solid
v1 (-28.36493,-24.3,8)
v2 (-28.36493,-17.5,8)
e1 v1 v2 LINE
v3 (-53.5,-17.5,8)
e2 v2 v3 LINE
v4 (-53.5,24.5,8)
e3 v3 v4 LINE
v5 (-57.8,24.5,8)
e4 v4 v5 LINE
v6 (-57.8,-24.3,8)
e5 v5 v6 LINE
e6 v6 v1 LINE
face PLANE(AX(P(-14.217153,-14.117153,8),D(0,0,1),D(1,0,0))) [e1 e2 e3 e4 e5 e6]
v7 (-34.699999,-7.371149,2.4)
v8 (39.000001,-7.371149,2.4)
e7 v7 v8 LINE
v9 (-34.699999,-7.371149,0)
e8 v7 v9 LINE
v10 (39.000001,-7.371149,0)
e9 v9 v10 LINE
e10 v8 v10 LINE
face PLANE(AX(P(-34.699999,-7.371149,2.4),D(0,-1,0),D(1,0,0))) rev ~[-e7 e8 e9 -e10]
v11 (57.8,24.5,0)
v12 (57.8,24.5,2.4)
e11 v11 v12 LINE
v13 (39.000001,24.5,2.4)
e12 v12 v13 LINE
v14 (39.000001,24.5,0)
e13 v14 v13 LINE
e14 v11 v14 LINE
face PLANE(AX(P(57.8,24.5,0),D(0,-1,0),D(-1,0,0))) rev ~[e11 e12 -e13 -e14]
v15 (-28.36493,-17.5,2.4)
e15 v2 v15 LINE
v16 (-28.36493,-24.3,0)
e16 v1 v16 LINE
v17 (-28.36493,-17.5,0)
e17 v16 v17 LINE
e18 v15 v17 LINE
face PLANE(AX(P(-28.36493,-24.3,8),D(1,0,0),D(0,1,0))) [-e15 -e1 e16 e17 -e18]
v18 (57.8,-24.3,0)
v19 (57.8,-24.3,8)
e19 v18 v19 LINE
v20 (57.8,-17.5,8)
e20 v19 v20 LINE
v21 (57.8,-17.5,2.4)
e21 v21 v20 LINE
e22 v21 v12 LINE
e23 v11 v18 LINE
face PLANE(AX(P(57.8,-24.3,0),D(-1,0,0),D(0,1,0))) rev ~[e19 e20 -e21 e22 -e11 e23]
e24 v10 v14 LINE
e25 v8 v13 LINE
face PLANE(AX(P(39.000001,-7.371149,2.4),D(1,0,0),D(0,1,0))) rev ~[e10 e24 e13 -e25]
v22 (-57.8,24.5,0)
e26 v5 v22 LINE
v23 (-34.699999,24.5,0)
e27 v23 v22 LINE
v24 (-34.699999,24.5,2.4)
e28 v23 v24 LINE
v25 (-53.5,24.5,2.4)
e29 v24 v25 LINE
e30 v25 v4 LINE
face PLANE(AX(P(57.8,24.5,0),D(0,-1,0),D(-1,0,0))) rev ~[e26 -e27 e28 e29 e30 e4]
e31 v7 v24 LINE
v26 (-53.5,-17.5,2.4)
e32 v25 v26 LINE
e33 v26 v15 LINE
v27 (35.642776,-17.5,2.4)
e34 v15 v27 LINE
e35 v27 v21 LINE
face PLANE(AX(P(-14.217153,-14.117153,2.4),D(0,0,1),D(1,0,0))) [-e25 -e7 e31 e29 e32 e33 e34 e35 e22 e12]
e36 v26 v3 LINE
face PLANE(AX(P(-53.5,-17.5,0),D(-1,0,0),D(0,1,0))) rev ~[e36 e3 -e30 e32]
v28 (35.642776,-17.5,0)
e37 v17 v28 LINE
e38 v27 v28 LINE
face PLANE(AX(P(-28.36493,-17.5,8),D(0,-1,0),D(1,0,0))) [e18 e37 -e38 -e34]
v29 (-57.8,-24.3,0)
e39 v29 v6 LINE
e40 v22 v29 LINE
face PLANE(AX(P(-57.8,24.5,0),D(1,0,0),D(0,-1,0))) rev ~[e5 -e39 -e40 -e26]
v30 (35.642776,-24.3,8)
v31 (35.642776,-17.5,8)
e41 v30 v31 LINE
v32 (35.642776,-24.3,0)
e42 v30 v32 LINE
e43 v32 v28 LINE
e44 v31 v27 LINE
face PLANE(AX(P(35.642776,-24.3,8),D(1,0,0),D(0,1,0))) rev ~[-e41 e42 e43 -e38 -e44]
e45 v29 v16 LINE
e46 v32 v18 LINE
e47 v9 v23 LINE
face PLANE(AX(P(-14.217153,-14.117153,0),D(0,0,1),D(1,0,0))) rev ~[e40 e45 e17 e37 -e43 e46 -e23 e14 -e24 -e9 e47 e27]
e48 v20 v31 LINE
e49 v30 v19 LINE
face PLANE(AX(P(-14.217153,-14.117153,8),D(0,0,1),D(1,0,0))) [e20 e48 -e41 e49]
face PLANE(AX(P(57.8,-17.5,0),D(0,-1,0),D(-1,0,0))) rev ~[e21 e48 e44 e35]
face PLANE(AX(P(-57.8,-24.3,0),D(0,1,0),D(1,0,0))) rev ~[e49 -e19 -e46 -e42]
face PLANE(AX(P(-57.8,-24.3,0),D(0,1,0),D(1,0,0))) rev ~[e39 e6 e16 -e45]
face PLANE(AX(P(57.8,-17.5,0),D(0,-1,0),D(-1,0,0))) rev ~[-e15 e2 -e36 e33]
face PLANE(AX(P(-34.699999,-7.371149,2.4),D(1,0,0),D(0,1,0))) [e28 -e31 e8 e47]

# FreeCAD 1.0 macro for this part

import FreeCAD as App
import Part
import Sketcher
from FreeCAD import Vector

doc = App.newDocument("Part")
body = doc.addObject("PartDesign::Body", "Body")

# Sketch on XY plane
sketch1 = body.newObject("Sketcher::SketchObject", "Sketch")
sketch1.AttachmentSupport = (doc.getObject("XY_Plane"), [""])
sketch1.MapMode = "FlatFace"
sketch1.addGeometry(Part.LineSegment(Vector(-57.8, 24.5, 0), Vector(-57.8, -24.3, 0)), False)
sketch1.addGeometry(Part.LineSegment(Vector(-57.8, -24.3, 0), Vector(57.8, -24.3, 0)), False)
sketch1.addGeometry(Part.LineSegment(Vector(57.8, -24.3, 0), Vector(57.8, 24.5, 0)), False)
sketch1.addGeometry(Part.LineSegment(Vector(57.8, 24.5, 0), Vector(-57.8, 24.5, 0)), False)
sketch1.addConstraint(Sketcher.Constraint("Coincident", 0, 2, 1, 1))
sketch1.addConstraint(Sketcher.Constraint("Coincident", 1, 2, 2, 1))
sketch1.addConstraint(Sketcher.Constraint("Coincident", 2, 2, 3, 1))
sketch1.addConstraint(Sketcher.Constraint("Coincident", 3, 2, 0, 1))
sketch1.addConstraint(Sketcher.Constraint("Vertical", 0))
sketch1.addConstraint(Sketcher.Constraint("Horizontal", 1))
sketch1.addConstraint(Sketcher.Constraint("Vertical", 2))
sketch1.addConstraint(Sketcher.Constraint("Horizontal", 3))
sketch1.addConstraint(Sketcher.Constraint("DistanceX", 1, 1, 1, 2, 115.6))
sketch1.addConstraint(Sketcher.Constraint("DistanceY", 0, 2, 0, 1, 48.8))
sketch1.addConstraint(Sketcher.Constraint("DistanceX", 0, 2, -1, 1, 57.8))
sketch1.addConstraint(Sketcher.Constraint("DistanceY", 0, 2, -1, 1, 24.3))
pad1 = body.newObject("PartDesign::Pad", "Pad")
pad1.Profile = sketch1
pad1.Length = 2.4

# Sketch on XY plane
sketch2 = body.newObject("Sketcher::SketchObject", "Sketch001")
sketch2.AttachmentSupport = (doc.getObject("XY_Plane"), [""])
sketch2.MapMode = "FlatFace"
sketch2.addGeometry(Part.LineSegment(Vector(-53.5, -17.5, 0), Vector(-53.5, 24.5, 0)), False)
sketch2.addGeometry(Part.LineSegment(Vector(-53.5, 24.5, 0), Vector(-57.8, 24.5, 0)), False)
sketch2.addGeometry(Part.LineSegment(Vector(-57.8, 24.5, 0), Vector(-57.8, -24.3, 0)), False)
sketch2.addGeometry(Part.LineSegment(Vector(-57.8, -24.3, 0), Vector(57.8, -24.3, 0)), False)
sketch2.addGeometry(Part.LineSegment(Vector(57.8, -24.3, 0), Vector(57.8, -17.5, 0)), False)
sketch2.addGeometry(Part.LineSegment(Vector(57.8, -17.5, 0), Vector(-53.5, -17.5, 0)), False)
sketch2.addConstraint(Sketcher.Constraint("Coincident", 0, 2, 1, 1))
sketch2.addConstraint(Sketcher.Constraint("Coincident", 1, 2, 2, 1))
sketch2.addConstraint(Sketcher.Constraint("Coincident", 2, 2, 3, 1))
sketch2.addConstraint(Sketcher.Constraint("Coincident", 3, 2, 4, 1))
sketch2.addConstraint(Sketcher.Constraint("Coincident", 4, 2, 5, 1))
sketch2.addConstraint(Sketcher.Constraint("Coincident", 5, 2, 0, 1))
sketch2.addConstraint(Sketcher.Constraint("Vertical", 0))
sketch2.addConstraint(Sketcher.Constraint("Horizontal", 1))
sketch2.addConstraint(Sketcher.Constraint("Vertical", 2))
sketch2.addConstraint(Sketcher.Constraint("Horizontal", 3))
sketch2.addConstraint(Sketcher.Constraint("Vertical", 4))
sketch2.addConstraint(Sketcher.Constraint("Horizontal", 5))
sketch2.addConstraint(Sketcher.Constraint("DistanceY", 0, 1, 0, 2, 42.0))
sketch2.addConstraint(Sketcher.Constraint("DistanceX", 1, 2, 1, 1, 4.3))
sketch2.addConstraint(Sketcher.Constraint("DistanceX", 3, 1, 3, 2, 115.6))
sketch2.addConstraint(Sketcher.Constraint("DistanceY", 2, 2, 2, 1, 48.8))
sketch2.addConstraint(Sketcher.Constraint("DistanceX", 0, 2, -1, 1, 53.5))
sketch2.addConstraint(Sketcher.Constraint("DistanceY", -1, 1, 0, 2, 24.5))
pad2 = body.newObject("PartDesign::Pad", "Pad001")
pad2.Profile = sketch2
pad2.Length = 8

# Sketch on XY plane
sketch3 = body.newObject("Sketcher::SketchObject", "Sketch002")
sketch3.AttachmentSupport = (doc.getObject("XY_Plane"), [""])
sketch3.MapMode = "FlatFace"
sketch3.AttachmentOffset = App.Placement(Vector(0, 0, 8), App.Rotation())
sketch3.addGeometry(Part.LineSegment(Vector(-28.36493, -17.5, 0), Vector(-28.36493, -24.3, 0)), False)
sketch3.addGeometry(Part.LineSegment(Vector(-28.36493, -24.3, 0), Vector(35.642776, -24.3, 0)), False)
sketch3.addGeometry(Part.LineSegment(Vector(35.642776, -24.3, 0), Vector(35.642776, -17.5, 0)), False)
sketch3.addGeometry(Part.LineSegment(Vector(35.642776, -17.5, 0), Vector(-28.36493, -17.5, 0)), False)
sketch3.addConstraint(Sketcher.Constraint("Coincident", 0, 2, 1, 1))
sketch3.addConstraint(Sketcher.Constraint("Coincident", 1, 2, 2, 1))
sketch3.addConstraint(Sketcher.Constraint("Coincident", 2, 2, 3, 1))
sketch3.addConstraint(Sketcher.Constraint("Coincident", 3, 2, 0, 1))
sketch3.addConstraint(Sketcher.Constraint("Vertical", 0))
sketch3.addConstraint(Sketcher.Constraint("Horizontal", 1))
sketch3.addConstraint(Sketcher.Constraint("Vertical", 2))
sketch3.addConstraint(Sketcher.Constraint("Horizontal", 3))
sketch3.addConstraint(Sketcher.Constraint("DistanceY", 0, 2, 0, 1, 6.8))
sketch3.addConstraint(Sketcher.Constraint("DistanceY", 0, 2, -1, 1, 24.3))
sketch3.addConstraint(Sketcher.Constraint("DistanceX", 1, 1, 1, 2, 64.007707))
sketch3.addConstraint(Sketcher.Constraint("DistanceX", 0, 2, -1, 1, 28.36493))
pocket1 = body.newObject("PartDesign::Pocket", "Pocket")
pocket1.Profile = sketch3
pocket1.Length = 25

# Sketch on XY plane
sketch4 = body.newObject("Sketcher::SketchObject", "Sketch003")
sketch4.AttachmentSupport = (doc.getObject("XY_Plane"), [""])
sketch4.MapMode = "FlatFace"
sketch4.AttachmentOffset = App.Placement(Vector(0, 0, 2.4), App.Rotation())
sketch4.addGeometry(Part.LineSegment(Vector(-34.699999, 24.5, 0), Vector(-34.699999, -7.371149, 0)), False)
sketch4.addGeometry(Part.LineSegment(Vector(-34.699999, -7.371149, 0), Vector(39.000001, -7.371149, 0)), False)
sketch4.addGeometry(Part.LineSegment(Vector(39.000001, -7.371149, 0), Vector(39.000001, 24.5, 0)), False)
sketch4.addGeometry(Part.LineSegment(Vector(39.000001, 24.5, 0), Vector(-34.699999, 24.5, 0)), False)
sketch4.addConstraint(Sketcher.Constraint("Coincident", 0, 2, 1, 1))
sketch4.addConstraint(Sketcher.Constraint("Coincident", 1, 2, 2, 1))
sketch4.addConstraint(Sketcher.Constraint("Coincident", 2, 2, 3, 1))
sketch4.addConstraint(Sketcher.Constraint("Coincident", 3, 2, 0, 1))
sketch4.addConstraint(Sketcher.Constraint("Vertical", 0))
sketch4.addConstraint(Sketcher.Constraint("Horizontal", 1))
sketch4.addConstraint(Sketcher.Constraint("Vertical", 2))
sketch4.addConstraint(Sketcher.Constraint("Horizontal", 3))
sketch4.addConstraint(Sketcher.Constraint("DistanceX", 1, 1, 1, 2, 73.7))
sketch4.addConstraint(Sketcher.Constraint("DistanceX", -1, 1, 1, 2, 39.000001))
sketch4.addConstraint(Sketcher.Constraint("DistanceY", -1, 1, 2, 2, 24.5))
sketch4.addConstraint(Sketcher.Constraint("DistanceY", 0, 2, 0, 1, 31.871149))
pocket2 = body.newObject("PartDesign::Pocket", "Pocket001")
pocket2.Profile = sketch4
pocket2.Length = 25

doc.recompute()
